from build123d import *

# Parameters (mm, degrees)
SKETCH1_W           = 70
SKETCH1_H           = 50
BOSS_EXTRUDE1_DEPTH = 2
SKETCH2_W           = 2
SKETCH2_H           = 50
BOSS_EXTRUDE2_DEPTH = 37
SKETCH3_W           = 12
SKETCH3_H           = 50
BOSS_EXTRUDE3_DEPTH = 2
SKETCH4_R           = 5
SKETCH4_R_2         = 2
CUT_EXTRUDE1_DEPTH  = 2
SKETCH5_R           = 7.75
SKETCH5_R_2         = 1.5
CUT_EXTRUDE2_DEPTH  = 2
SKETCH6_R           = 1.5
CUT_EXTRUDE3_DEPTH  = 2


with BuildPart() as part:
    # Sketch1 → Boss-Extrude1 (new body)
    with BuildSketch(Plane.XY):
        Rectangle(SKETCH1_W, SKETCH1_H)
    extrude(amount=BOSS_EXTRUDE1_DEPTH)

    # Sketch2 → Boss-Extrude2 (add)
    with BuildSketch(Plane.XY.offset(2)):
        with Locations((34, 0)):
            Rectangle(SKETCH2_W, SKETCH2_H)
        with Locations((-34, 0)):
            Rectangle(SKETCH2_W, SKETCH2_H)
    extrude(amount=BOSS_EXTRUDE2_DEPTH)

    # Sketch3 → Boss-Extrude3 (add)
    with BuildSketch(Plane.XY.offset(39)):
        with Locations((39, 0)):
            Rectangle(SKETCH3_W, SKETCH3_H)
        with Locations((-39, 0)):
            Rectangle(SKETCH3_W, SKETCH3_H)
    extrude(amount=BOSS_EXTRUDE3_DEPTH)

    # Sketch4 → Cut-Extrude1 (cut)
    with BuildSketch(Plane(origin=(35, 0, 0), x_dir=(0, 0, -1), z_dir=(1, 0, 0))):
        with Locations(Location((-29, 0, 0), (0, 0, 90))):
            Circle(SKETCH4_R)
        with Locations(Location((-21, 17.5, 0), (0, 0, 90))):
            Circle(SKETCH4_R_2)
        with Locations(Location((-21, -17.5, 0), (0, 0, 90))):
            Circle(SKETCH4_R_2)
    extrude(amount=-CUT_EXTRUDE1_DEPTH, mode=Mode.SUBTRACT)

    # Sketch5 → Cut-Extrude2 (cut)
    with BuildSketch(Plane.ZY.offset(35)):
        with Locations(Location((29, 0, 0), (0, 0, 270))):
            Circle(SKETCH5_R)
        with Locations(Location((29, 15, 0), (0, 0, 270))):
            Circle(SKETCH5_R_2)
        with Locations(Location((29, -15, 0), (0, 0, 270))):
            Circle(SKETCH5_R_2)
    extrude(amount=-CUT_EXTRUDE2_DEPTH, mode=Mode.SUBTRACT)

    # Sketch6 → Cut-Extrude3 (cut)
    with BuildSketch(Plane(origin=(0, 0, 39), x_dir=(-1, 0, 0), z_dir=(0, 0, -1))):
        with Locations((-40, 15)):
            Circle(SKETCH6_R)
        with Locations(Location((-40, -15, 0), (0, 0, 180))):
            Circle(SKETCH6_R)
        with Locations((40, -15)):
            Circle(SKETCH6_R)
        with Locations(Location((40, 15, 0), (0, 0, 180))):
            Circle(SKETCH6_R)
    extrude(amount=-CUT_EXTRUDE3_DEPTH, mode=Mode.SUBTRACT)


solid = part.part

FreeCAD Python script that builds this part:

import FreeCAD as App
import Part
import Sketcher
Q = App.Units.Quantity


def add_polygon(sketch, points):
    """Adds a closed chain of lines whose ends are joined by coincident constraints."""
    first, n = sketch.GeometryCount, len(points)
    for a, b in zip(points, points[1:] + points[:1]):
        sketch.addGeometry(Part.LineSegment(App.Vector(*a, 0), App.Vector(*b, 0)), False)
    for i in range(n):
        sketch.addConstraint(Sketcher.Constraint("Coincident", first + i, 2, first + (i + 1) % n, 1))

doc = App.newDocument("Part")
params = doc.addObject("Spreadsheet::Sheet", "Params")
for row, (alias, value) in enumerate([
    ("sketch1_width", "70 mm"),
    ("sketch1_height", "50 mm"),
    ("pad1_length", "2 mm"),
    ("sketch2_width", "2 mm"),
    ("sketch2_height", "50 mm"),
    ("pad2_length", "37 mm"),
    ("sketch3_width", "12 mm"),
    ("sketch3_height", "50 mm"),
    ("pad3_length", "2 mm"),
    ("sketch4_diameter", "10 mm"),
    ("sketch4_diameter2", "4 mm"),
    ("pocket1_length", "2 mm"),
    ("sketch5_diameter", "3 mm"),
    ("sketch5_diameter2", "15.5 mm"),
    ("pocket2_length", "2 mm"),
    ("sketch6_diameter", "3 mm"),
    ("pocket3_length", "2 mm"),
], start=1):
    params.set(f"A{row}", alias)
    params.set(f"B{row}", "=" + value)
    params.setAlias(f"B{row}", alias)

body = doc.addObject("PartDesign::Body", "Body")

# Sketch on XY plane
sketch1 = body.newObject("Sketcher::SketchObject", "Sketch")
sketch1.AttachmentSupport = (doc.getObject("XY_Plane"), [""])
sketch1.MapMode = "FlatFace"
add_polygon(sketch1, [(-35, 25), (-35, -25), (35, -25), (35, 25)])  # lines 0-3
sketch1.addConstraint([
    Sketcher.Constraint("Vertical", 0),
    Sketcher.Constraint("Horizontal", 1),
    Sketcher.Constraint("Vertical", 2),
    Sketcher.Constraint("Horizontal", 3),
    Sketcher.Constraint("Symmetric", 0, 2, 2, 2, -1, 1),
    Sketcher.Constraint("DistanceX", 1, 1, 1, 2, Q("70 mm")),
    Sketcher.Constraint("DistanceY", 0, 2, 0, 1, Q("50 mm")),
])
sketch1.setExpression("Constraints[9]", "Params.sketch1_width")
sketch1.setExpression("Constraints[10]", "Params.sketch1_height")
pad1 = body.newObject("PartDesign::Pad", "Pad")
pad1.Profile = sketch1
pad1.setExpression("Length", "Params.pad1_length")

# Sketch on XY plane
sketch2 = body.newObject("Sketcher::SketchObject", "Sketch001")
sketch2.AttachmentSupport = (doc.getObject("XY_Plane"), [""])
sketch2.MapMode = "FlatFace"
sketch2.AttachmentOffset = App.Placement(App.Vector(0, 0, 2), App.Rotation())
add_polygon(sketch2, [(33, 25), (33, -25), (35, -25), (35, 25)])  # lines 0-3
add_polygon(sketch2, [(-35, 25), (-35, -25), (-33, -25), (-33, 25)])  # lines 4-7
sketch2.addConstraint([
    Sketcher.Constraint("Vertical", 0),
    Sketcher.Constraint("Horizontal", 1),
    Sketcher.Constraint("Vertical", 2),
    Sketcher.Constraint("Horizontal", 3),
    Sketcher.Constraint("Vertical", 4),
    Sketcher.Constraint("Horizontal", 5),
    Sketcher.Constraint("Vertical", 6),
    Sketcher.Constraint("Horizontal", 7),
    Sketcher.Constraint("Symmetric", 2, 2, 4, 2, -1, 1),
    Sketcher.Constraint("Symmetric", 0, 2, 6, 2, -1, 1),
    Sketcher.Constraint("Horizontal", 1, 2, 4, 2),
    Sketcher.Constraint("DistanceX", 1, 1, 1, 2, Q("2 mm")),
    Sketcher.Constraint("DistanceY", 0, 2, 0, 1, Q("50 mm")),
    Sketcher.Constraint("DistanceX", -1, 1, 0, 2, Q("33 mm")),
])
sketch2.setExpression("Constraints[19]", "Params.sketch2_width")
sketch2.setExpression("Constraints[20]", "Params.sketch2_height")
pad2 = body.newObject("PartDesign::Pad", "Pad001")
pad2.Profile = sketch2
pad2.setExpression("Length", "Params.pad2_length")

# Sketch on XY plane
sketch3 = body.newObject("Sketcher::SketchObject", "Sketch002")
sketch3.AttachmentSupport = (doc.getObject("XY_Plane"), [""])
sketch3.MapMode = "FlatFace"
sketch3.AttachmentOffset = App.Placement(App.Vector(0, 0, 39), App.Rotation())
add_polygon(sketch3, [(33, 25), (33, -25), (45, -25), (45, 25)])  # lines 0-3
add_polygon(sketch3, [(-45, 25), (-45, -25), (-33, -25), (-33, 25)])  # lines 4-7
sketch3.addConstraint([
    Sketcher.Constraint("Vertical", 0),
    Sketcher.Constraint("Horizontal", 1),
    Sketcher.Constraint("Vertical", 2),
    Sketcher.Constraint("Horizontal", 3),
    Sketcher.Constraint("Vertical", 4),
    Sketcher.Constraint("Horizontal", 5),
    Sketcher.Constraint("Vertical", 6),
    Sketcher.Constraint("Horizontal", 7),
    Sketcher.Constraint("Symmetric", 2, 2, 4, 2, -1, 1),
    Sketcher.Constraint("Symmetric", 0, 2, 6, 2, -1, 1),
    Sketcher.Constraint("Horizontal", 1, 2, 4, 2),
    Sketcher.Constraint("DistanceX", 1, 1, 1, 2, Q("12 mm")),
    Sketcher.Constraint("DistanceY", 0, 2, 0, 1, Q("50 mm")),
    Sketcher.Constraint("DistanceX", -1, 1, 0, 2, Q("33 mm")),
])
sketch3.setExpression("Constraints[19]", "Params.sketch3_width")
sketch3.setExpression("Constraints[20]", "Params.sketch3_height")
pad3 = body.newObject("PartDesign::Pad", "Pad002")
pad3.Profile = sketch3
pad3.setExpression("Length", "Params.pad3_length")

# Sketch on YZ plane
sketch4 = body.newObject("Sketcher::SketchObject", "Sketch003")
sketch4.AttachmentSupport = (doc.getObject("YZ_Plane"), [""])
sketch4.MapMode = "FlatFace"
sketch4.AttachmentOffset = App.Placement(App.Vector(0, 0, 35), App.Rotation())
sketch4.addGeometry([
    Part.Circle(App.Vector(0, 29, 0), App.Vector(0, 0, 1), 5),
    Part.Circle(App.Vector(17.5, 21, 0), App.Vector(0, 0, 1), 2),
    Part.Circle(App.Vector(-17.5, 21, 0), App.Vector(0, 0, 1), 2),
], False)
sketch4.addConstraint([
    Sketcher.Constraint("Equal", 1, 2),
    Sketcher.Constraint("Symmetric", 1, 3, 2, 3, -2),
    Sketcher.Constraint("PointOnObject", 0, 3, -2),
    Sketcher.Constraint("Diameter", 0, Q("10 mm")),
    Sketcher.Constraint("Diameter", 1, Q("4 mm")),
    Sketcher.Constraint("DistanceY", -1, 1, 0, 3, Q("29 mm")),
    Sketcher.Constraint("DistanceY", -1, 1, 1, 3, Q("21 mm")),
    Sketcher.Constraint("DistanceX", 2, 3, 1, 3, Q("35 mm")),
])
sketch4.setExpression("Constraints[3]", "Params.sketch4_diameter")
sketch4.setExpression("Constraints[4]", "Params.sketch4_diameter2")
pocket1 = body.newObject("PartDesign::Pocket", "Pocket")
pocket1.Profile = sketch4
pocket1.setExpression("Length", "Params.pocket1_length")

# Sketch on YZ plane
sketch5 = body.newObject("Sketcher::SketchObject", "Sketch004")
sketch5.AttachmentSupport = (doc.getObject("YZ_Plane"), [""])
sketch5.MapMode = "FlatFace"
sketch5.AttachmentOffset = App.Placement(App.Vector(0, 0, -35), App.Rotation())
sketch5.addGeometry([
    Part.Circle(App.Vector(0, 29, 0), App.Vector(0, 0, 1), 7.8),
    Part.Circle(App.Vector(15, 29, 0), App.Vector(0, 0, 1), 1.5),
    Part.Circle(App.Vector(-15, 29, 0), App.Vector(0, 0, 1), 1.5),
], False)
sketch5.addConstraint([
    Sketcher.Constraint("Equal", 1, 2),
    Sketcher.Constraint("Symmetric", 1, 3, 2, 3, -2),
    Sketcher.Constraint("PointOnObject", 0, 3, -2),
    Sketcher.Constraint("Horizontal", 0, 3, 1, 3),
    Sketcher.Constraint("Diameter", 1, Q("3 mm")),
    Sketcher.Constraint("Diameter", 0, Q("15.5 mm")),
    Sketcher.Constraint("DistanceY", -1, 1, 0, 3, Q("29 mm")),
    Sketcher.Constraint("DistanceX", -1, 1, 1, 3, Q("15 mm")),
])
sketch5.setExpression("Constraints[4]", "Params.sketch5_diameter")
sketch5.setExpression("Constraints[5]", "Params.sketch5_diameter2")
pocket2 = body.newObject("PartDesign::Pocket", "Pocket001")
pocket2.Profile = sketch5
pocket2.setExpression("Length", "Params.pocket2_length")
pocket2.Reversed = True

# Sketch on XY plane
sketch6 = body.newObject("Sketcher::SketchObject", "Sketch005")
sketch6.AttachmentSupport = (doc.getObject("XY_Plane"), [""])
sketch6.MapMode = "FlatFace"
sketch6.AttachmentOffset = App.Placement(App.Vector(0, 0, 39), App.Rotation())
sketch6.addGeometry([
    Part.Circle(App.Vector(40, 15, 0), App.Vector(0, 0, 1), 1.5),
    Part.Circle(App.Vector(40, -15, 0), App.Vector(0, 0, 1), 1.5),
    Part.Circle(App.Vector(-40, -15, 0), App.Vector(0, 0, 1), 1.5),
    Part.Circle(App.Vector(-40, 15, 0), App.Vector(0, 0, 1), 1.5),
], False)
sketch6.addConstraint([
    Sketcher.Constraint("Equal", 0, 1),
    Sketcher.Constraint("Equal", 1, 2),
    Sketcher.Constraint("Equal", 2, 3),
    Sketcher.Constraint("Symmetric", 0, 3, 2, 3, -1, 1),
    Sketcher.Constraint("Symmetric", 1, 3, 3, 3, -1, 1),
    Sketcher.Constraint("Symmetric", 1, 3, 2, 3, -2),
    Sketcher.Constraint("Diameter", 0, Q("3 mm")),
    Sketcher.Constraint("DistanceX", -1, 1, 0, 3, Q("40 mm")),
    Sketcher.Constraint("DistanceY", -1, 1, 0, 3, Q("15 mm")),
])
sketch6.setExpression("Constraints[6]", "Params.sketch6_diameter")
pocket3 = body.newObject("PartDesign::Pocket", "Pocket002")
pocket3.Profile = sketch6
pocket3.setExpression("Length", "Params.pocket3_length")
pocket3.Reversed = True

doc.recompute()
